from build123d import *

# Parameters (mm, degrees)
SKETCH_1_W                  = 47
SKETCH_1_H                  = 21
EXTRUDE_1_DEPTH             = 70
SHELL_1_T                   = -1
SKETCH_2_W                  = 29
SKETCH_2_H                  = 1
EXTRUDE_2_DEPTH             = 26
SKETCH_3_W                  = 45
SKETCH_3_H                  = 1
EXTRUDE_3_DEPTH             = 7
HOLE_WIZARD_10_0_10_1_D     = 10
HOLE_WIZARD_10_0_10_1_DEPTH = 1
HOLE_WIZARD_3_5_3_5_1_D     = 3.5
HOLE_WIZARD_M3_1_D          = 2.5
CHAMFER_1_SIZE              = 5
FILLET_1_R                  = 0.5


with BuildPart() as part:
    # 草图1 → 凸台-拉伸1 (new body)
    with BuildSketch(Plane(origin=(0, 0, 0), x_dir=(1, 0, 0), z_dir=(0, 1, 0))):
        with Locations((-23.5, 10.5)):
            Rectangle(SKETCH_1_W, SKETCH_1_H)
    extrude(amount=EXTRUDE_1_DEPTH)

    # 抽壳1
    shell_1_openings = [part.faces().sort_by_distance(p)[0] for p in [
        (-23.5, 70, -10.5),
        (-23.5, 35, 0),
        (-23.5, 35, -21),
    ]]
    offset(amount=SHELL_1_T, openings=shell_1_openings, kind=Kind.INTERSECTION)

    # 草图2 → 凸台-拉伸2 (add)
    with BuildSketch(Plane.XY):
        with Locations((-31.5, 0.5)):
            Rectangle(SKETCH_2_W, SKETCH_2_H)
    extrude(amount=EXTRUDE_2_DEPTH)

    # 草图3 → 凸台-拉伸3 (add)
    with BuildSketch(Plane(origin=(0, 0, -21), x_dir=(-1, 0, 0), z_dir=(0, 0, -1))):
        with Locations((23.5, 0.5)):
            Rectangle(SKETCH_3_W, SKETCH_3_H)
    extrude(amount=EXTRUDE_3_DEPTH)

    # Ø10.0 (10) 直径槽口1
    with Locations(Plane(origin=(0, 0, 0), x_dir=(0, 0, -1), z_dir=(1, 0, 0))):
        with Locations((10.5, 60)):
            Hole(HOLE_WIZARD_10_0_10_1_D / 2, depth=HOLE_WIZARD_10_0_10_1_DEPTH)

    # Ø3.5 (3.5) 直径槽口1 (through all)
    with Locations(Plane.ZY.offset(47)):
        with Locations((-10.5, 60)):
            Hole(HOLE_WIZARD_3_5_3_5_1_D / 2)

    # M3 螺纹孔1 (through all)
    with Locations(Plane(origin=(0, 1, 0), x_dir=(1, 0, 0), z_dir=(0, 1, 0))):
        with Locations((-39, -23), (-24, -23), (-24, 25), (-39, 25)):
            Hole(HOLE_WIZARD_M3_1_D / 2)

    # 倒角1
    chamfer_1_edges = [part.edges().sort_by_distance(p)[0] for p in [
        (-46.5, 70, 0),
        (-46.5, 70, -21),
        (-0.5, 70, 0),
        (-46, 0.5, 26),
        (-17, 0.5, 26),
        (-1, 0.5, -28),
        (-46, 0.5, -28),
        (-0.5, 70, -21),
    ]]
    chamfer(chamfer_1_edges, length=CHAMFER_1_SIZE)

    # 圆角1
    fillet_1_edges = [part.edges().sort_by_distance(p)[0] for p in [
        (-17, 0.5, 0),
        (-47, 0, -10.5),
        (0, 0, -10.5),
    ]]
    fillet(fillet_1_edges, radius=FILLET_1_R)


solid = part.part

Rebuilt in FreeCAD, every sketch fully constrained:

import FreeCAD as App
import Part
import Sketcher
from FreeCAD import Vector


def edges_at(feature, points):
    """Names of the edges that pass closest to the given points."""
    edges = feature.Shape.Edges
    near = lambda p: min(range(len(edges)), key=lambda i: edges[i].distToShape(Part.Vertex(*p))[0])
    return sorted({f"Edge{near(p) + 1}" for p in points})


def faces_at(feature, points):
    """Names of the faces that lie closest to the given points."""
    faces = feature.Shape.Faces
    near = lambda p: min(range(len(faces)), key=lambda i: faces[i].distToShape(Part.Vertex(*p))[0])
    return sorted({f"Face{near(p) + 1}" for p in points})

doc = App.newDocument("Part")
body = doc.addObject("PartDesign::Body", "Body")

sketch1 = body.newObject("Sketcher::SketchObject", "Sketch")
sketch1.AttachmentSupport = (doc.getObject("XZ_Plane"), [""])
sketch1.MapMode = "FlatFace"
sketch1.addGeometry([
    Part.LineSegment(Vector(-47, -21, 0), Vector(-47, 0, 0)),
    Part.LineSegment(Vector(-47, 0, 0), Vector(0, 0, 0)),
    Part.LineSegment(Vector(0, 0, 0), Vector(0, -21, 0)),
    Part.LineSegment(Vector(0, -21, 0), Vector(-47, -21, 0)),
], False)
sketch1.addConstraint([
    Sketcher.Constraint("Coincident", 0, 2, 1, 1),
    Sketcher.Constraint("Coincident", 1, 2, 2, 1),
    Sketcher.Constraint("Coincident", 2, 2, 3, 1),
    Sketcher.Constraint("Coincident", 3, 2, 0, 1),
    Sketcher.Constraint("Vertical", 0),
    Sketcher.Constraint("Horizontal", 1),
    Sketcher.Constraint("Vertical", 2),
    Sketcher.Constraint("Horizontal", 3),
    Sketcher.Constraint("Coincident", 1, 2, -1, 1),
    Sketcher.Constraint("DistanceX", 1, 1, 1, 2, 47.0),
    Sketcher.Constraint("DistanceY", 0, 1, 0, 2, 21.0),
])
pad1 = body.newObject("PartDesign::Pad", "Pad")
pad1.Profile = sketch1
pad1.Length = 70
pad1.Reversed = True
doc.recompute()

thickness = body.newObject("PartDesign::Thickness", "Thickness")
thickness.Base = (pad1, faces_at(pad1, [(-23.5, 70, -10.5), (-23.5, 35, 0), (-23.5, 35, -21)]))
thickness.Value = 1
thickness.Reversed = True
thickness.Join = "Intersection"

sketch2 = body.newObject("Sketcher::SketchObject", "Sketch001")
sketch2.AttachmentSupport = (doc.getObject("XY_Plane"), [""])
sketch2.MapMode = "FlatFace"
sketch2.addGeometry([
    Part.LineSegment(Vector(-46, 1, 0), Vector(-46, 0, 0)),
    Part.LineSegment(Vector(-46, 0, 0), Vector(-17, 0, 0)),
    Part.LineSegment(Vector(-17, 0, 0), Vector(-17, 1, 0)),
    Part.LineSegment(Vector(-17, 1, 0), Vector(-46, 1, 0)),
], False)
sketch2.addConstraint([
    Sketcher.Constraint("Coincident", 0, 2, 1, 1),
    Sketcher.Constraint("Coincident", 1, 2, 2, 1),
    Sketcher.Constraint("Coincident", 2, 2, 3, 1),
    Sketcher.Constraint("Coincident", 3, 2, 0, 1),
    Sketcher.Constraint("Vertical", 0),
    Sketcher.Constraint("Horizontal", 1),
    Sketcher.Constraint("Vertical", 2),
    Sketcher.Constraint("Horizontal", 3),
    Sketcher.Constraint("PointOnObject", 0, 2, -1),
    Sketcher.Constraint("DistanceX", 1, 1, 1, 2, 29.0),
    Sketcher.Constraint("DistanceY", 0, 2, 0, 1, 1.0),
    Sketcher.Constraint("DistanceX", 0, 2, -1, 1, 46.0),
])
pad2 = body.newObject("PartDesign::Pad", "Pad001")
pad2.Profile = sketch2
pad2.Length = 26

sketch3 = body.newObject("Sketcher::SketchObject", "Sketch002")
sketch3.AttachmentSupport = (doc.getObject("XY_Plane"), [""])
sketch3.MapMode = "FlatFace"
sketch3.AttachmentOffset = App.Placement(Vector(0, 0, -21), App.Rotation())
sketch3.addGeometry([
    Part.LineSegment(Vector(-1, 1, 0), Vector(-1, 0, 0)),
    Part.LineSegment(Vector(-1, 0, 0), Vector(-46, 0, 0)),
    Part.LineSegment(Vector(-46, 0, 0), Vector(-46, 1, 0)),
    Part.LineSegment(Vector(-46, 1, 0), Vector(-1, 1, 0)),
], False)
sketch3.addConstraint([
    Sketcher.Constraint("Coincident", 0, 2, 1, 1),
    Sketcher.Constraint("Coincident", 1, 2, 2, 1),
    Sketcher.Constraint("Coincident", 2, 2, 3, 1),
    Sketcher.Constraint("Coincident", 3, 2, 0, 1),
    Sketcher.Constraint("Vertical", 0),
    Sketcher.Constraint("Horizontal", 1),
    Sketcher.Constraint("Vertical", 2),
    Sketcher.Constraint("Horizontal", 3),
    Sketcher.Constraint("PointOnObject", 0, 2, -1),
    Sketcher.Constraint("DistanceX", 1, 2, 1, 1, 45.0),
    Sketcher.Constraint("DistanceY", 0, 2, 0, 1, 1.0),
    Sketcher.Constraint("DistanceX", 0, 2, -1, 1, 1.0),
])
pad3 = body.newObject("PartDesign::Pad", "Pad002")
pad3.Profile = sketch3
pad3.Length = 7
pad3.Reversed = True

sketch4 = body.newObject("Sketcher::SketchObject", "Sketch003")
sketch4.AttachmentSupport = (doc.getObject("YZ_Plane"), [""])
sketch4.MapMode = "FlatFace"
sketch4.addGeometry(Part.Circle(Vector(60, -10, 0), Vector(0, 0, 1), 5), False)
sketch4.addConstraint([
    Sketcher.Constraint("Diameter", 0, 10.0),
    Sketcher.Constraint("DistanceX", -1, 1, 0, 3, 60.0),
    Sketcher.Constraint("DistanceY", 0, 3, -1, 1, 10.5),
])
doc.recompute()
hole = body.newObject("PartDesign::Hole", "Hole")
hole.Profile = sketch4
hole.ThreadType = "None"
hole.Diameter = 10
hole.DepthType = "Dimension"
hole.Depth = 1
hole.DrillPoint = "Flat"

sketch5 = body.newObject("Sketcher::SketchObject", "Sketch004")
sketch5.AttachmentSupport = (doc.getObject("YZ_Plane"), [""])
sketch5.MapMode = "FlatFace"
sketch5.AttachmentOffset = App.Placement(Vector(0, 0, -47), App.Rotation())
sketch5.addGeometry(Part.Circle(Vector(60, -10.5, 0), Vector(0, 0, 1), 1.8), False)
sketch5.addConstraint([
    Sketcher.Constraint("Diameter", 0, 3.5),
    Sketcher.Constraint("DistanceX", -1, 1, 0, 3, 60.0),
    Sketcher.Constraint("DistanceY", 0, 3, -1, 1, 10.5),
])
doc.recompute()
hole2 = body.newObject("PartDesign::Hole", "Hole001")
hole2.Profile = sketch5
hole2.ThreadType = "None"
hole2.Diameter = 3.5
hole2.DepthType = "ThroughAll"
hole2.Reversed = True

sketch6 = body.newObject("Sketcher::SketchObject", "Sketch005")
sketch6.AttachmentSupport = (doc.getObject("XZ_Plane"), [""])
sketch6.MapMode = "FlatFace"
sketch6.AttachmentOffset = App.Placement(Vector(0, 0, -1), App.Rotation())
sketch6.addGeometry([
    Part.Circle(Vector(-39, 23, 0), Vector(0, 0, 1), 1.2),
    Part.Circle(Vector(-24, 23, 0), Vector(0, 0, 1), 1.2),
    Part.Circle(Vector(-24, -25, 0), Vector(0, 0, 1), 1.2),
    Part.Circle(Vector(-39, -25, 0), Vector(0, 0, 1), 1.2),
], False)
sketch6.addConstraint([
    Sketcher.Constraint("Equal", 0, 1),
    Sketcher.Constraint("Equal", 1, 2),
    Sketcher.Constraint("Equal", 2, 3),
    Sketcher.Constraint("Horizontal", 0, 3, 1, 3),
    Sketcher.Constraint("Horizontal", 2, 3, 3, 3),
    Sketcher.Constraint("Vertical", 1, 3, 2, 3),
    Sketcher.Constraint("Vertical", 0, 3, 3, 3),
    Sketcher.Constraint("Diameter", 0, 2.5),
    Sketcher.Constraint("DistanceX", 0, 3, -1, 1, 39.0),
    Sketcher.Constraint("DistanceY", -1, 1, 0, 3, 23.0),
    Sketcher.Constraint("DistanceX", 1, 3, -1, 1, 24.0),
    Sketcher.Constraint("DistanceY", 2, 3, -1, 1, 25.0),
])
doc.recompute()
hole3 = body.newObject("PartDesign::Hole", "Hole002")
hole3.Profile = sketch6
hole3.ThreadType = "None"
hole3.Diameter = 2.5
hole3.DepthType = "ThroughAll"
hole3.Reversed = True
doc.recompute()

chamfer = body.newObject("PartDesign::Chamfer", "Chamfer")
chamfer.Base = (hole3, edges_at(hole3, [
    (-46.5, 70, 0),
    (-46.5, 70, -21),
    (-0.5, 70, 0),
    (-46, 0.5, 26),
    (-17, 0.5, 26),
    (-1, 0.5, -28),
    (-46, 0.5, -28),
    (-0.5, 70, -21),
]))
chamfer.Size = 5
doc.recompute()

fillet = body.newObject("PartDesign::Fillet", "Fillet")
fillet.Base = (chamfer, edges_at(chamfer, [(-17, 0.5, 0), (-47, 0, -10.5), (0, 0, -10.5)]))
fillet.Radius = 0.5

doc.recompute()
